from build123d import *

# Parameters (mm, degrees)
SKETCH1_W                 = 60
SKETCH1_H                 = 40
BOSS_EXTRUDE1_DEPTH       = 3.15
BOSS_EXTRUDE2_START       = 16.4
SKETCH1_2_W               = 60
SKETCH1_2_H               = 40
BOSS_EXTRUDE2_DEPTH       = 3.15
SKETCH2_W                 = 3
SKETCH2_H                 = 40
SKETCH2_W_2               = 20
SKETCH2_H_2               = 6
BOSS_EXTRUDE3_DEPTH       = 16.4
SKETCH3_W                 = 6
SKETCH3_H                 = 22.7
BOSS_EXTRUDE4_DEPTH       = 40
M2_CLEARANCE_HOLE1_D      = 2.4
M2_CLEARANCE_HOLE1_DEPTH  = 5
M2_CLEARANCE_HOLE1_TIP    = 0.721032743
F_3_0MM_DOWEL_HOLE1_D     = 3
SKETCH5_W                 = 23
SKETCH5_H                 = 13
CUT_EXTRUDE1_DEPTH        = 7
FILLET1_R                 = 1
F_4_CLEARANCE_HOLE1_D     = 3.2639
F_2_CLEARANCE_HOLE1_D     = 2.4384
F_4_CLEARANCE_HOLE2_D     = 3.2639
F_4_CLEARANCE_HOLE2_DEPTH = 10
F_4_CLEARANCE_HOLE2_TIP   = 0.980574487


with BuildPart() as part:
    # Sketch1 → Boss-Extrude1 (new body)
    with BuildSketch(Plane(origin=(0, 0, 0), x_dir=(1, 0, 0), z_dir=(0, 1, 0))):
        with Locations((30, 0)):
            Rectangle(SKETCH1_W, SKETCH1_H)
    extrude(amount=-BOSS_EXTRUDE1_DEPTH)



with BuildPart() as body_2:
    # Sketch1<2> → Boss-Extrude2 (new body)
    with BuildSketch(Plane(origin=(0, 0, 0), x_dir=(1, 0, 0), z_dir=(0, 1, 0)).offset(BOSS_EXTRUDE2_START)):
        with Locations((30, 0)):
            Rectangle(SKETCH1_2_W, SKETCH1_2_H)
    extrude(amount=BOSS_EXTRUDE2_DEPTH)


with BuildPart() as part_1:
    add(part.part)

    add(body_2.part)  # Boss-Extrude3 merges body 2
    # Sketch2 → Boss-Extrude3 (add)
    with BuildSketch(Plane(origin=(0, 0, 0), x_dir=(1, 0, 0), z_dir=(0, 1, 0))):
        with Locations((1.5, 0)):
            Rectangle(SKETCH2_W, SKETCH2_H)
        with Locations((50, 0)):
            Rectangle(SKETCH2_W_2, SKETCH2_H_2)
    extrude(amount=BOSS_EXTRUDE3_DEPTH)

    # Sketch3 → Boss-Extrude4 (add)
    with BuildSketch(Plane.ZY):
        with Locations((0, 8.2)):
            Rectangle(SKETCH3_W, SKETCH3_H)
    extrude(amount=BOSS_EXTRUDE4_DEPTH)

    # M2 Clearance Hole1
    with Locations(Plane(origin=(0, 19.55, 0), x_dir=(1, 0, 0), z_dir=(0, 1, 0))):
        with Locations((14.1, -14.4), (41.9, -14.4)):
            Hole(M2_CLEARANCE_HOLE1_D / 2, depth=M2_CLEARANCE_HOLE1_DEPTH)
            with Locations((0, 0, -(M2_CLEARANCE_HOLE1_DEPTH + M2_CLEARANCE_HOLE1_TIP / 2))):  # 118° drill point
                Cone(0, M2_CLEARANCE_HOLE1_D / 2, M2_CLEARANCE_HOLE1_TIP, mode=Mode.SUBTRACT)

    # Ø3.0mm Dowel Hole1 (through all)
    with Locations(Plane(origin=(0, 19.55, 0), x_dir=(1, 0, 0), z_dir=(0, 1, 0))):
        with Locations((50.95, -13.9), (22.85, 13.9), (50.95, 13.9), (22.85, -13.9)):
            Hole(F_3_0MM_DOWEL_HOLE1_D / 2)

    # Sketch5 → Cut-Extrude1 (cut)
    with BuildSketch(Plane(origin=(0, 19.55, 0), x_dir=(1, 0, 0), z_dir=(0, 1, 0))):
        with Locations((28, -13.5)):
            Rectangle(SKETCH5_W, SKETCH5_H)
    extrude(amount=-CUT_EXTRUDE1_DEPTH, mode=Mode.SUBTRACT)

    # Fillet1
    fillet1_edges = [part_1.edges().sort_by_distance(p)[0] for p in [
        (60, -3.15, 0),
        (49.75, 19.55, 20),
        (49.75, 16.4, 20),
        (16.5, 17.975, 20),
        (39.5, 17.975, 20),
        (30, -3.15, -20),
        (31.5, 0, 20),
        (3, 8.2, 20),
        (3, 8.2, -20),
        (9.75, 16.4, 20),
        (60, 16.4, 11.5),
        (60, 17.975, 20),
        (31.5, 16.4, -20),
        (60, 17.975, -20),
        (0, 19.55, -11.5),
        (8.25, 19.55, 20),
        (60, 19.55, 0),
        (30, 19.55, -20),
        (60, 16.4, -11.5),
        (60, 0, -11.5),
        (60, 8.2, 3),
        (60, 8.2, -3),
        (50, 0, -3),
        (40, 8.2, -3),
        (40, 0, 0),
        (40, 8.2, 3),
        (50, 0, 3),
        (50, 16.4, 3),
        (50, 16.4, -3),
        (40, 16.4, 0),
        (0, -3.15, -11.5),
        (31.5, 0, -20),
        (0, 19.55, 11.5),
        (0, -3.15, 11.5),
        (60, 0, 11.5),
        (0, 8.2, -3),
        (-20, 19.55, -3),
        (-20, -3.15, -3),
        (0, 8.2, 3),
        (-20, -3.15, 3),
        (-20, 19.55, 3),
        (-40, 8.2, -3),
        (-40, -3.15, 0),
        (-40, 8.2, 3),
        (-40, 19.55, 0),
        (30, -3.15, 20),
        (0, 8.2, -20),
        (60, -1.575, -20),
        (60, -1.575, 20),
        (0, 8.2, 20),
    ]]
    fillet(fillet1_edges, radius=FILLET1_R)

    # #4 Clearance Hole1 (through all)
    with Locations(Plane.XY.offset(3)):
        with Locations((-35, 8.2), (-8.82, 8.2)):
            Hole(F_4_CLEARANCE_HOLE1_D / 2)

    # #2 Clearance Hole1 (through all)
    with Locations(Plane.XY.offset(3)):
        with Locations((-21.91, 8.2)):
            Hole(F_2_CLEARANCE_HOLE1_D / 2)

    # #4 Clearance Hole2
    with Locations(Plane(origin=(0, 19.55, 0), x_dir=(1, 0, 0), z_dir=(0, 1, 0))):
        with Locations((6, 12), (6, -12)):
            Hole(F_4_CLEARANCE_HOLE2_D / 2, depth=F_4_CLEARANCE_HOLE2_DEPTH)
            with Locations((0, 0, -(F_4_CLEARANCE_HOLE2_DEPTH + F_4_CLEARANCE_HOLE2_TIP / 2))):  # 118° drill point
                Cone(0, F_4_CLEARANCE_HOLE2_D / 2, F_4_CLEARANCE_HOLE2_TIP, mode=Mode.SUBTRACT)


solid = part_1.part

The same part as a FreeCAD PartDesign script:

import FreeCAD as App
import Part
import Sketcher

V = App.Vector


def edges_at(feature, points):
    """Names of the edges that pass closest to the given points."""
    edges = feature.Shape.Edges
    near = lambda p: min(range(len(edges)), key=lambda i: edges[i].distToShape(Part.Vertex(*p))[0])
    return sorted({f"Edge{near(p) + 1}" for p in points})

doc = App.newDocument("Part")
body = doc.addObject("PartDesign::Body", "Body")

sketch1 = body.newObject("Sketcher::SketchObject", "Sketch")
sketch1.AttachmentSupport = (doc.getObject("XZ_Plane"), [""])
sketch1.MapMode = "FlatFace"
sketch1.addGeometry(Part.LineSegment(V(0, -20, 0), V(0, 20, 0)), False)
sketch1.addGeometry(Part.LineSegment(V(0, 20, 0), V(60, 20, 0)), False)
sketch1.addGeometry(Part.LineSegment(V(60, 20, 0), V(60, -20, 0)), False)
sketch1.addGeometry(Part.LineSegment(V(60, -20, 0), V(0, -20, 0)), False)
sketch1.addConstraint(Sketcher.Constraint("Coincident", 0, 2, 1, 1))
sketch1.addConstraint(Sketcher.Constraint("Coincident", 1, 2, 2, 1))
sketch1.addConstraint(Sketcher.Constraint("Coincident", 2, 2, 3, 1))
sketch1.addConstraint(Sketcher.Constraint("Coincident", 3, 2, 0, 1))
sketch1.addConstraint(Sketcher.Constraint("Vertical", 0))
sketch1.addConstraint(Sketcher.Constraint("Horizontal", 1))
sketch1.addConstraint(Sketcher.Constraint("Vertical", 2))
sketch1.addConstraint(Sketcher.Constraint("Horizontal", 3))
sketch1.addConstraint(Sketcher.Constraint("Symmetric", 0, 2, 3, 2, -1, 1))
sketch1.addConstraint(Sketcher.Constraint("DistanceX", 1, 1, 1, 2, 60.0))
sketch1.addConstraint(Sketcher.Constraint("DistanceY", 0, 1, 0, 2, 40.0))
pad1 = body.newObject("PartDesign::Pad", "Pad")
pad1.Profile = sketch1
pad1.Length = 3.15
body2 = doc.addObject("PartDesign::Body", "Body001")

sketch2 = body2.newObject("Sketcher::SketchObject", "Sketch001")
sketch2.AttachmentSupport = (doc.getObject("XZ_Plane001"), [""])
sketch2.MapMode = "FlatFace"
sketch2.AttachmentOffset = App.Placement(V(0, 0, -16.4), App.Rotation())
sketch2.addGeometry(Part.LineSegment(V(0, -20, 0), V(0, 20, 0)), False)
sketch2.addGeometry(Part.LineSegment(V(0, 20, 0), V(60, 20, 0)), False)
sketch2.addGeometry(Part.LineSegment(V(60, 20, 0), V(60, -20, 0)), False)
sketch2.addGeometry(Part.LineSegment(V(60, -20, 0), V(0, -20, 0)), False)
sketch2.addConstraint(Sketcher.Constraint("Coincident", 0, 2, 1, 1))
sketch2.addConstraint(Sketcher.Constraint("Coincident", 1, 2, 2, 1))
sketch2.addConstraint(Sketcher.Constraint("Coincident", 2, 2, 3, 1))
sketch2.addConstraint(Sketcher.Constraint("Coincident", 3, 2, 0, 1))
sketch2.addConstraint(Sketcher.Constraint("Vertical", 0))
sketch2.addConstraint(Sketcher.Constraint("Horizontal", 1))
sketch2.addConstraint(Sketcher.Constraint("Vertical", 2))
sketch2.addConstraint(Sketcher.Constraint("Horizontal", 3))
sketch2.addConstraint(Sketcher.Constraint("Symmetric", 0, 2, 3, 2, -1, 1))
sketch2.addConstraint(Sketcher.Constraint("DistanceX", 1, 1, 1, 2, 60.0))
sketch2.addConstraint(Sketcher.Constraint("DistanceY", 0, 1, 0, 2, 40.0))
pad2 = body2.newObject("PartDesign::Pad", "Pad001")
pad2.Profile = sketch2
pad2.Length = 3.15
pad2.Reversed = True
body.AllowCompound = True
doc.recompute()

boolean = body.newObject("PartDesign::Boolean", "Boolean")
boolean.Type = "Fuse"
boolean.addObjects([body2])

sketch3 = body.newObject("Sketcher::SketchObject", "Sketch002")
sketch3.AttachmentSupport = (doc.getObject("XZ_Plane"), [""])
sketch3.MapMode = "FlatFace"
sketch3.addGeometry(Part.LineSegment(V(0, -20, 0), V(0, 20, 0)), False)
sketch3.addGeometry(Part.LineSegment(V(0, 20, 0), V(3, 20, 0)), False)
sketch3.addGeometry(Part.LineSegment(V(3, 20, 0), V(3, -20, 0)), False)
sketch3.addGeometry(Part.LineSegment(V(3, -20, 0), V(0, -20, 0)), False)
sketch3.addGeometry(Part.LineSegment(V(40, -3, 0), V(40, 3, 0)), False)
sketch3.addGeometry(Part.LineSegment(V(40, 3, 0), V(60, 3, 0)), False)
sketch3.addGeometry(Part.LineSegment(V(60, 3, 0), V(60, -3, 0)), False)
sketch3.addGeometry(Part.LineSegment(V(60, -3, 0), V(40, -3, 0)), False)
sketch3.addConstraint(Sketcher.Constraint("Coincident", 0, 2, 1, 1))
sketch3.addConstraint(Sketcher.Constraint("Coincident", 1, 2, 2, 1))
sketch3.addConstraint(Sketcher.Constraint("Coincident", 2, 2, 3, 1))
sketch3.addConstraint(Sketcher.Constraint("Coincident", 3, 2, 0, 1))
sketch3.addConstraint(Sketcher.Constraint("Coincident", 4, 2, 5, 1))
sketch3.addConstraint(Sketcher.Constraint("Coincident", 5, 2, 6, 1))
sketch3.addConstraint(Sketcher.Constraint("Coincident", 6, 2, 7, 1))
sketch3.addConstraint(Sketcher.Constraint("Coincident", 7, 2, 4, 1))
sketch3.addConstraint(Sketcher.Constraint("Vertical", 0))
sketch3.addConstraint(Sketcher.Constraint("Horizontal", 1))
sketch3.addConstraint(Sketcher.Constraint("Vertical", 2))
sketch3.addConstraint(Sketcher.Constraint("Horizontal", 3))
sketch3.addConstraint(Sketcher.Constraint("Vertical", 4))
sketch3.addConstraint(Sketcher.Constraint("Horizontal", 5))
sketch3.addConstraint(Sketcher.Constraint("Vertical", 6))
sketch3.addConstraint(Sketcher.Constraint("Horizontal", 7))
sketch3.addConstraint(Sketcher.Constraint("Symmetric", 0, 2, 3, 2, -1, 1))
sketch3.addConstraint(Sketcher.Constraint("DistanceX", 1, 1, 1, 2, 3.0))
sketch3.addConstraint(Sketcher.Constraint("DistanceX", 5, 1, 5, 2, 20.0))
sketch3.addConstraint(Sketcher.Constraint("DistanceY", 0, 1, 0, 2, 40.0))
sketch3.addConstraint(Sketcher.Constraint("DistanceY", 4, 1, 4, 2, 6.0))
sketch3.addConstraint(Sketcher.Constraint("DistanceX", -1, 1, 4, 2, 40.0))
sketch3.addConstraint(Sketcher.Constraint("DistanceY", -1, 1, 4, 2, 3.0))
pad3 = body.newObject("PartDesign::Pad", "Pad002")
pad3.Profile = sketch3
pad3.Length = 16.4
pad3.Reversed = True

sketch4 = body.newObject("Sketcher::SketchObject", "Sketch003")
sketch4.AttachmentSupport = (doc.getObject("YZ_Plane"), [""])
sketch4.MapMode = "FlatFace"
sketch4.addGeometry(Part.LineSegment(V(19.55, -3, 0), V(-3.15, -3, 0)), False)
sketch4.addGeometry(Part.LineSegment(V(-3.15, -3, 0), V(-3.15, 3, 0)), False)
sketch4.addGeometry(Part.LineSegment(V(-3.15, 3, 0), V(19.55, 3, 0)), False)
sketch4.addGeometry(Part.LineSegment(V(19.55, 3, 0), V(19.55, -3, 0)), False)
sketch4.addConstraint(Sketcher.Constraint("Coincident", 0, 2, 1, 1))
sketch4.addConstraint(Sketcher.Constraint("Coincident", 1, 2, 2, 1))
sketch4.addConstraint(Sketcher.Constraint("Coincident", 2, 2, 3, 1))
sketch4.addConstraint(Sketcher.Constraint("Coincident", 3, 2, 0, 1))
sketch4.addConstraint(Sketcher.Constraint("Horizontal", 0))
sketch4.addConstraint(Sketcher.Constraint("Vertical", 1))
sketch4.addConstraint(Sketcher.Constraint("Horizontal", 2))
sketch4.addConstraint(Sketcher.Constraint("Vertical", 3))
sketch4.addConstraint(Sketcher.Constraint("DistanceY", 1, 1, 1, 2, 6.0))
sketch4.addConstraint(Sketcher.Constraint("DistanceX", 0, 2, 0, 1, 22.7))
sketch4.addConstraint(Sketcher.Constraint("DistanceY", 0, 2, -1, 1, 3.0))
sketch4.addConstraint(Sketcher.Constraint("DistanceX", 0, 2, -1, 1, 3.15))
pad4 = body.newObject("PartDesign::Pad", "Pad003")
pad4.Profile = sketch4
pad4.Length = 40
pad4.Reversed = True

sketch5 = body.newObject("Sketcher::SketchObject", "Sketch004")
sketch5.AttachmentSupport = (doc.getObject("XZ_Plane"), [""])
sketch5.MapMode = "FlatFace"
sketch5.AttachmentOffset = App.Placement(V(0, 0, -19.55), App.Rotation())
sketch5.addGeometry(Part.Circle(V(14.1, 14.4, 0), V(0, 0, 1), 1.2), False)
sketch5.addGeometry(Part.Circle(V(41.9, 14.4, 0), V(0, 0, 1), 1.2), False)
sketch5.addConstraint(Sketcher.Constraint("Equal", 0, 1))
sketch5.addConstraint(Sketcher.Constraint("Horizontal", 0, 3, 1, 3))
sketch5.addConstraint(Sketcher.Constraint("Diameter", 0, 2.4))
sketch5.addConstraint(Sketcher.Constraint("DistanceX", -1, 1, 0, 3, 14.1))
sketch5.addConstraint(Sketcher.Constraint("DistanceY", -1, 1, 0, 3, 14.4))
sketch5.addConstraint(Sketcher.Constraint("DistanceX", -1, 1, 1, 3, 41.9))
doc.recompute()
hole = body.newObject("PartDesign::Hole", "Hole")
hole.Profile = sketch5
hole.ThreadType = "None"
hole.Diameter = 2.4
hole.DepthType = "Dimension"
hole.Depth = 5
hole.DrillPoint = "Angled"
hole.DrillPointAngle = 118
hole.Reversed = True

sketch6 = body.newObject("Sketcher::SketchObject", "Sketch005")
sketch6.AttachmentSupport = (doc.getObject("XZ_Plane"), [""])
sketch6.MapMode = "FlatFace"
sketch6.AttachmentOffset = App.Placement(V(0, 0, -19.55), App.Rotation())
sketch6.addGeometry(Part.Circle(V(50.95, 13.9, 0), V(0, 0, 1), 1.5), False)
sketch6.addGeometry(Part.Circle(V(22.85, -13.9, 0), V(0, 0, 1), 1.5), False)
sketch6.addGeometry(Part.Circle(V(50.95, -13.9, 0), V(0, 0, 1), 1.5), False)
sketch6.addGeometry(Part.Circle(V(22.85, 13.9, 0), V(0, 0, 1), 1.5), False)
sketch6.addConstraint(Sketcher.Constraint("Equal", 0, 1))
sketch6.addConstraint(Sketcher.Constraint("Equal", 1, 2))
sketch6.addConstraint(Sketcher.Constraint("Equal", 2, 3))
sketch6.addConstraint(Sketcher.Constraint("Symmetric", 0, 3, 2, 3, -1))
sketch6.addConstraint(Sketcher.Constraint("Symmetric", 1, 3, 3, 3, -1))
sketch6.addConstraint(Sketcher.Constraint("Horizontal", 1, 3, 2, 3))
sketch6.addConstraint(Sketcher.Constraint("Diameter", 0, 3.0))
sketch6.addConstraint(Sketcher.Constraint("DistanceY", -1, 1, 0, 3, 13.9))
sketch6.addConstraint(Sketcher.Constraint("DistanceX", 1, 3, 0, 3, 28.1))
sketch6.addConstraint(Sketcher.Constraint("DistanceX", -1, 1, 0, 3, 50.95))
doc.recompute()
hole2 = body.newObject("PartDesign::Hole", "Hole001")
hole2.Profile = sketch6
hole2.ThreadType = "None"
hole2.Diameter = 3
hole2.DepthType = "ThroughAll"
hole2.Reversed = True

sketch7 = body.newObject("Sketcher::SketchObject", "Sketch006")
sketch7.AttachmentSupport = (doc.getObject("XZ_Plane"), [""])
sketch7.MapMode = "FlatFace"
sketch7.AttachmentOffset = App.Placement(V(0, 0, -19.55), App.Rotation())
sketch7.addGeometry(Part.LineSegment(V(16.5, 7, 0), V(16.5, 20, 0)), False)
sketch7.addGeometry(Part.LineSegment(V(16.5, 20, 0), V(39.5, 20, 0)), False)
sketch7.addGeometry(Part.LineSegment(V(39.5, 20, 0), V(39.5, 7, 0)), False)
sketch7.addGeometry(Part.LineSegment(V(39.5, 7, 0), V(16.5, 7, 0)), False)
sketch7.addConstraint(Sketcher.Constraint("Coincident", 0, 2, 1, 1))
sketch7.addConstraint(Sketcher.Constraint("Coincident", 1, 2, 2, 1))
sketch7.addConstraint(Sketcher.Constraint("Coincident", 2, 2, 3, 1))
sketch7.addConstraint(Sketcher.Constraint("Coincident", 3, 2, 0, 1))
sketch7.addConstraint(Sketcher.Constraint("Vertical", 0))
sketch7.addConstraint(Sketcher.Constraint("Horizontal", 1))
sketch7.addConstraint(Sketcher.Constraint("Vertical", 2))
sketch7.addConstraint(Sketcher.Constraint("Horizontal", 3))
sketch7.addConstraint(Sketcher.Constraint("DistanceX", 1, 1, 1, 2, 23.0))
sketch7.addConstraint(Sketcher.Constraint("DistanceY", 0, 1, 0, 2, 13.0))
sketch7.addConstraint(Sketcher.Constraint("DistanceY", -1, 1, 0, 2, 20.0))
sketch7.addConstraint(Sketcher.Constraint("DistanceX", -1, 1, 0, 2, 16.5))
pocket1 = body.newObject("PartDesign::Pocket", "Pocket")
pocket1.Profile = sketch7
pocket1.Length = 7
pocket1.Reversed = True
doc.recompute()

fillet = body.newObject("PartDesign::Fillet", "Fillet")
fillet.Base = (pocket1, edges_at(pocket1, [
    (60, -3.15, 0),
    (49.75, 19.55, 20),
    (49.75, 16.4, 20),
    (16.5, 17.975, 20),
    (39.5, 17.975, 20),
    (30, -3.15, -20),
    (31.5, 0, 20),
    (3, 8.2, 20),
    (3, 8.2, -20),
    (9.75, 16.4, 20),
    (60, 16.4, 11.5),
    (60, 17.975, 20),
    (31.5, 16.4, -20),
    (60, 17.975, -20),
    (0, 19.55, -11.5),
    (8.25, 19.55, 20),
    (60, 19.55, 0),
    (30, 19.55, -20),
    (60, 16.4, -11.5),
    (60, 0, -11.5),
    (60, 8.2, 3),
    (60, 8.2, -3),
    (50, 0, -3),
    (40, 8.2, -3),
    (40, 0, 0),
    (40, 8.2, 3),
    (50, 0, 3),
    (50, 16.4, 3),
    (50, 16.4, -3),
    (40, 16.4, 0),
    (0, -3.15, -11.5),
    (31.5, 0, -20),
    (0, 19.55, 11.5),
    (0, -3.15, 11.5),
    (60, 0, 11.5),
    (0, 8.2, -3),
    (-20, 19.55, -3),
    (-20, -3.15, -3),
    (0, 8.2, 3),
    (-20, -3.15, 3),
    (-20, 19.55, 3),
    (-40, 8.2, -3),
    (-40, -3.15, 0),
    (-40, 8.2, 3),
    (-40, 19.55, 0),
    (30, -3.15, 20),
    (0, 8.2, -20),
    (60, -1.575, -20),
    (60, -1.575, 20),
    (0, 8.2, 20),
]))
fillet.Radius = 1

sketch8 = body.newObject("Sketcher::SketchObject", "Sketch007")
sketch8.AttachmentSupport = (doc.getObject("XY_Plane"), [""])
sketch8.MapMode = "FlatFace"
sketch8.AttachmentOffset = App.Placement(V(0, 0, 3), App.Rotation())
sketch8.addGeometry(Part.Circle(V(-35, 8.2, 0), V(0, 0, 1), 1.63195), False)
sketch8.addGeometry(Part.Circle(V(-8.82, 8.2, 0), V(0, 0, 1), 1.63195), False)
sketch8.addConstraint(Sketcher.Constraint("Equal", 0, 1))
sketch8.addConstraint(Sketcher.Constraint("Horizontal", 0, 3, 1, 3))
sketch8.addConstraint(Sketcher.Constraint("DistanceX", 0, 3, -1, 1, 35.0))
sketch8.addConstraint(Sketcher.Constraint("Diameter", 0, 3.2639))
sketch8.addConstraint(Sketcher.Constraint("DistanceY", -1, 1, 0, 3, 8.2))
sketch8.addConstraint(Sketcher.Constraint("DistanceX", 1, 3, -1, 1, 8.82))
doc.recompute()
hole3 = body.newObject("PartDesign::Hole", "Hole002")
hole3.Profile = sketch8
hole3.ThreadType = "None"
hole3.Diameter = 3.2639
hole3.DepthType = "ThroughAll"

sketch9 = body.newObject("Sketcher::SketchObject", "Sketch008")
sketch9.AttachmentSupport = (doc.getObject("XY_Plane"), [""])
sketch9.MapMode = "FlatFace"
sketch9.AttachmentOffset = App.Placement(V(0, 0, 3), App.Rotation())
sketch9.addGeometry(Part.Circle(V(-21.91, 8.2, 0), V(0, 0, 1), 1.2192), False)
sketch9.addConstraint(Sketcher.Constraint("Diameter", 0, 2.4384))
sketch9.addConstraint(Sketcher.Constraint("DistanceY", -1, 1, 0, 3, 8.2))
sketch9.addConstraint(Sketcher.Constraint("DistanceX", 0, 3, -1, 1, 21.91))
doc.recompute()
hole4 = body.newObject("PartDesign::Hole", "Hole003")
hole4.Profile = sketch9
hole4.ThreadType = "None"
hole4.Diameter = 2.4384
hole4.DepthType = "ThroughAll"

sketch10 = body.newObject("Sketcher::SketchObject", "Sketch009")
sketch10.AttachmentSupport = (doc.getObject("XZ_Plane"), [""])
sketch10.MapMode = "FlatFace"
sketch10.AttachmentOffset = App.Placement(V(0, 0, -19.55), App.Rotation())
sketch10.addGeometry(Part.Circle(V(6, -12, 0), V(0, 0, 1), 1.63195), False)
sketch10.addGeometry(Part.Circle(V(6, 12, 0), V(0, 0, 1), 1.63195), False)
sketch10.addConstraint(Sketcher.Constraint("Equal", 0, 1))
sketch10.addConstraint(Sketcher.Constraint("Symmetric", 0, 3, 1, 3, -1))
sketch10.addConstraint(Sketcher.Constraint("DistanceX", -1, 1, 0, 3, 6.0))
sketch10.addConstraint(Sketcher.Constraint("DistanceY", 0, 3, -1, 1, 12.0))
sketch10.addConstraint(Sketcher.Constraint("Diameter", 0, 3.2639))
doc.recompute()
hole5 = body.newObject("PartDesign::Hole", "Hole004")
hole5.Profile = sketch10
hole5.ThreadType = "None"
hole5.Diameter = 3.2639
hole5.DepthType = "Dimension"
hole5.Depth = 10
hole5.DrillPoint = "Angled"
hole5.DrillPointAngle = 118
hole5.Reversed = True

doc.recompute()
